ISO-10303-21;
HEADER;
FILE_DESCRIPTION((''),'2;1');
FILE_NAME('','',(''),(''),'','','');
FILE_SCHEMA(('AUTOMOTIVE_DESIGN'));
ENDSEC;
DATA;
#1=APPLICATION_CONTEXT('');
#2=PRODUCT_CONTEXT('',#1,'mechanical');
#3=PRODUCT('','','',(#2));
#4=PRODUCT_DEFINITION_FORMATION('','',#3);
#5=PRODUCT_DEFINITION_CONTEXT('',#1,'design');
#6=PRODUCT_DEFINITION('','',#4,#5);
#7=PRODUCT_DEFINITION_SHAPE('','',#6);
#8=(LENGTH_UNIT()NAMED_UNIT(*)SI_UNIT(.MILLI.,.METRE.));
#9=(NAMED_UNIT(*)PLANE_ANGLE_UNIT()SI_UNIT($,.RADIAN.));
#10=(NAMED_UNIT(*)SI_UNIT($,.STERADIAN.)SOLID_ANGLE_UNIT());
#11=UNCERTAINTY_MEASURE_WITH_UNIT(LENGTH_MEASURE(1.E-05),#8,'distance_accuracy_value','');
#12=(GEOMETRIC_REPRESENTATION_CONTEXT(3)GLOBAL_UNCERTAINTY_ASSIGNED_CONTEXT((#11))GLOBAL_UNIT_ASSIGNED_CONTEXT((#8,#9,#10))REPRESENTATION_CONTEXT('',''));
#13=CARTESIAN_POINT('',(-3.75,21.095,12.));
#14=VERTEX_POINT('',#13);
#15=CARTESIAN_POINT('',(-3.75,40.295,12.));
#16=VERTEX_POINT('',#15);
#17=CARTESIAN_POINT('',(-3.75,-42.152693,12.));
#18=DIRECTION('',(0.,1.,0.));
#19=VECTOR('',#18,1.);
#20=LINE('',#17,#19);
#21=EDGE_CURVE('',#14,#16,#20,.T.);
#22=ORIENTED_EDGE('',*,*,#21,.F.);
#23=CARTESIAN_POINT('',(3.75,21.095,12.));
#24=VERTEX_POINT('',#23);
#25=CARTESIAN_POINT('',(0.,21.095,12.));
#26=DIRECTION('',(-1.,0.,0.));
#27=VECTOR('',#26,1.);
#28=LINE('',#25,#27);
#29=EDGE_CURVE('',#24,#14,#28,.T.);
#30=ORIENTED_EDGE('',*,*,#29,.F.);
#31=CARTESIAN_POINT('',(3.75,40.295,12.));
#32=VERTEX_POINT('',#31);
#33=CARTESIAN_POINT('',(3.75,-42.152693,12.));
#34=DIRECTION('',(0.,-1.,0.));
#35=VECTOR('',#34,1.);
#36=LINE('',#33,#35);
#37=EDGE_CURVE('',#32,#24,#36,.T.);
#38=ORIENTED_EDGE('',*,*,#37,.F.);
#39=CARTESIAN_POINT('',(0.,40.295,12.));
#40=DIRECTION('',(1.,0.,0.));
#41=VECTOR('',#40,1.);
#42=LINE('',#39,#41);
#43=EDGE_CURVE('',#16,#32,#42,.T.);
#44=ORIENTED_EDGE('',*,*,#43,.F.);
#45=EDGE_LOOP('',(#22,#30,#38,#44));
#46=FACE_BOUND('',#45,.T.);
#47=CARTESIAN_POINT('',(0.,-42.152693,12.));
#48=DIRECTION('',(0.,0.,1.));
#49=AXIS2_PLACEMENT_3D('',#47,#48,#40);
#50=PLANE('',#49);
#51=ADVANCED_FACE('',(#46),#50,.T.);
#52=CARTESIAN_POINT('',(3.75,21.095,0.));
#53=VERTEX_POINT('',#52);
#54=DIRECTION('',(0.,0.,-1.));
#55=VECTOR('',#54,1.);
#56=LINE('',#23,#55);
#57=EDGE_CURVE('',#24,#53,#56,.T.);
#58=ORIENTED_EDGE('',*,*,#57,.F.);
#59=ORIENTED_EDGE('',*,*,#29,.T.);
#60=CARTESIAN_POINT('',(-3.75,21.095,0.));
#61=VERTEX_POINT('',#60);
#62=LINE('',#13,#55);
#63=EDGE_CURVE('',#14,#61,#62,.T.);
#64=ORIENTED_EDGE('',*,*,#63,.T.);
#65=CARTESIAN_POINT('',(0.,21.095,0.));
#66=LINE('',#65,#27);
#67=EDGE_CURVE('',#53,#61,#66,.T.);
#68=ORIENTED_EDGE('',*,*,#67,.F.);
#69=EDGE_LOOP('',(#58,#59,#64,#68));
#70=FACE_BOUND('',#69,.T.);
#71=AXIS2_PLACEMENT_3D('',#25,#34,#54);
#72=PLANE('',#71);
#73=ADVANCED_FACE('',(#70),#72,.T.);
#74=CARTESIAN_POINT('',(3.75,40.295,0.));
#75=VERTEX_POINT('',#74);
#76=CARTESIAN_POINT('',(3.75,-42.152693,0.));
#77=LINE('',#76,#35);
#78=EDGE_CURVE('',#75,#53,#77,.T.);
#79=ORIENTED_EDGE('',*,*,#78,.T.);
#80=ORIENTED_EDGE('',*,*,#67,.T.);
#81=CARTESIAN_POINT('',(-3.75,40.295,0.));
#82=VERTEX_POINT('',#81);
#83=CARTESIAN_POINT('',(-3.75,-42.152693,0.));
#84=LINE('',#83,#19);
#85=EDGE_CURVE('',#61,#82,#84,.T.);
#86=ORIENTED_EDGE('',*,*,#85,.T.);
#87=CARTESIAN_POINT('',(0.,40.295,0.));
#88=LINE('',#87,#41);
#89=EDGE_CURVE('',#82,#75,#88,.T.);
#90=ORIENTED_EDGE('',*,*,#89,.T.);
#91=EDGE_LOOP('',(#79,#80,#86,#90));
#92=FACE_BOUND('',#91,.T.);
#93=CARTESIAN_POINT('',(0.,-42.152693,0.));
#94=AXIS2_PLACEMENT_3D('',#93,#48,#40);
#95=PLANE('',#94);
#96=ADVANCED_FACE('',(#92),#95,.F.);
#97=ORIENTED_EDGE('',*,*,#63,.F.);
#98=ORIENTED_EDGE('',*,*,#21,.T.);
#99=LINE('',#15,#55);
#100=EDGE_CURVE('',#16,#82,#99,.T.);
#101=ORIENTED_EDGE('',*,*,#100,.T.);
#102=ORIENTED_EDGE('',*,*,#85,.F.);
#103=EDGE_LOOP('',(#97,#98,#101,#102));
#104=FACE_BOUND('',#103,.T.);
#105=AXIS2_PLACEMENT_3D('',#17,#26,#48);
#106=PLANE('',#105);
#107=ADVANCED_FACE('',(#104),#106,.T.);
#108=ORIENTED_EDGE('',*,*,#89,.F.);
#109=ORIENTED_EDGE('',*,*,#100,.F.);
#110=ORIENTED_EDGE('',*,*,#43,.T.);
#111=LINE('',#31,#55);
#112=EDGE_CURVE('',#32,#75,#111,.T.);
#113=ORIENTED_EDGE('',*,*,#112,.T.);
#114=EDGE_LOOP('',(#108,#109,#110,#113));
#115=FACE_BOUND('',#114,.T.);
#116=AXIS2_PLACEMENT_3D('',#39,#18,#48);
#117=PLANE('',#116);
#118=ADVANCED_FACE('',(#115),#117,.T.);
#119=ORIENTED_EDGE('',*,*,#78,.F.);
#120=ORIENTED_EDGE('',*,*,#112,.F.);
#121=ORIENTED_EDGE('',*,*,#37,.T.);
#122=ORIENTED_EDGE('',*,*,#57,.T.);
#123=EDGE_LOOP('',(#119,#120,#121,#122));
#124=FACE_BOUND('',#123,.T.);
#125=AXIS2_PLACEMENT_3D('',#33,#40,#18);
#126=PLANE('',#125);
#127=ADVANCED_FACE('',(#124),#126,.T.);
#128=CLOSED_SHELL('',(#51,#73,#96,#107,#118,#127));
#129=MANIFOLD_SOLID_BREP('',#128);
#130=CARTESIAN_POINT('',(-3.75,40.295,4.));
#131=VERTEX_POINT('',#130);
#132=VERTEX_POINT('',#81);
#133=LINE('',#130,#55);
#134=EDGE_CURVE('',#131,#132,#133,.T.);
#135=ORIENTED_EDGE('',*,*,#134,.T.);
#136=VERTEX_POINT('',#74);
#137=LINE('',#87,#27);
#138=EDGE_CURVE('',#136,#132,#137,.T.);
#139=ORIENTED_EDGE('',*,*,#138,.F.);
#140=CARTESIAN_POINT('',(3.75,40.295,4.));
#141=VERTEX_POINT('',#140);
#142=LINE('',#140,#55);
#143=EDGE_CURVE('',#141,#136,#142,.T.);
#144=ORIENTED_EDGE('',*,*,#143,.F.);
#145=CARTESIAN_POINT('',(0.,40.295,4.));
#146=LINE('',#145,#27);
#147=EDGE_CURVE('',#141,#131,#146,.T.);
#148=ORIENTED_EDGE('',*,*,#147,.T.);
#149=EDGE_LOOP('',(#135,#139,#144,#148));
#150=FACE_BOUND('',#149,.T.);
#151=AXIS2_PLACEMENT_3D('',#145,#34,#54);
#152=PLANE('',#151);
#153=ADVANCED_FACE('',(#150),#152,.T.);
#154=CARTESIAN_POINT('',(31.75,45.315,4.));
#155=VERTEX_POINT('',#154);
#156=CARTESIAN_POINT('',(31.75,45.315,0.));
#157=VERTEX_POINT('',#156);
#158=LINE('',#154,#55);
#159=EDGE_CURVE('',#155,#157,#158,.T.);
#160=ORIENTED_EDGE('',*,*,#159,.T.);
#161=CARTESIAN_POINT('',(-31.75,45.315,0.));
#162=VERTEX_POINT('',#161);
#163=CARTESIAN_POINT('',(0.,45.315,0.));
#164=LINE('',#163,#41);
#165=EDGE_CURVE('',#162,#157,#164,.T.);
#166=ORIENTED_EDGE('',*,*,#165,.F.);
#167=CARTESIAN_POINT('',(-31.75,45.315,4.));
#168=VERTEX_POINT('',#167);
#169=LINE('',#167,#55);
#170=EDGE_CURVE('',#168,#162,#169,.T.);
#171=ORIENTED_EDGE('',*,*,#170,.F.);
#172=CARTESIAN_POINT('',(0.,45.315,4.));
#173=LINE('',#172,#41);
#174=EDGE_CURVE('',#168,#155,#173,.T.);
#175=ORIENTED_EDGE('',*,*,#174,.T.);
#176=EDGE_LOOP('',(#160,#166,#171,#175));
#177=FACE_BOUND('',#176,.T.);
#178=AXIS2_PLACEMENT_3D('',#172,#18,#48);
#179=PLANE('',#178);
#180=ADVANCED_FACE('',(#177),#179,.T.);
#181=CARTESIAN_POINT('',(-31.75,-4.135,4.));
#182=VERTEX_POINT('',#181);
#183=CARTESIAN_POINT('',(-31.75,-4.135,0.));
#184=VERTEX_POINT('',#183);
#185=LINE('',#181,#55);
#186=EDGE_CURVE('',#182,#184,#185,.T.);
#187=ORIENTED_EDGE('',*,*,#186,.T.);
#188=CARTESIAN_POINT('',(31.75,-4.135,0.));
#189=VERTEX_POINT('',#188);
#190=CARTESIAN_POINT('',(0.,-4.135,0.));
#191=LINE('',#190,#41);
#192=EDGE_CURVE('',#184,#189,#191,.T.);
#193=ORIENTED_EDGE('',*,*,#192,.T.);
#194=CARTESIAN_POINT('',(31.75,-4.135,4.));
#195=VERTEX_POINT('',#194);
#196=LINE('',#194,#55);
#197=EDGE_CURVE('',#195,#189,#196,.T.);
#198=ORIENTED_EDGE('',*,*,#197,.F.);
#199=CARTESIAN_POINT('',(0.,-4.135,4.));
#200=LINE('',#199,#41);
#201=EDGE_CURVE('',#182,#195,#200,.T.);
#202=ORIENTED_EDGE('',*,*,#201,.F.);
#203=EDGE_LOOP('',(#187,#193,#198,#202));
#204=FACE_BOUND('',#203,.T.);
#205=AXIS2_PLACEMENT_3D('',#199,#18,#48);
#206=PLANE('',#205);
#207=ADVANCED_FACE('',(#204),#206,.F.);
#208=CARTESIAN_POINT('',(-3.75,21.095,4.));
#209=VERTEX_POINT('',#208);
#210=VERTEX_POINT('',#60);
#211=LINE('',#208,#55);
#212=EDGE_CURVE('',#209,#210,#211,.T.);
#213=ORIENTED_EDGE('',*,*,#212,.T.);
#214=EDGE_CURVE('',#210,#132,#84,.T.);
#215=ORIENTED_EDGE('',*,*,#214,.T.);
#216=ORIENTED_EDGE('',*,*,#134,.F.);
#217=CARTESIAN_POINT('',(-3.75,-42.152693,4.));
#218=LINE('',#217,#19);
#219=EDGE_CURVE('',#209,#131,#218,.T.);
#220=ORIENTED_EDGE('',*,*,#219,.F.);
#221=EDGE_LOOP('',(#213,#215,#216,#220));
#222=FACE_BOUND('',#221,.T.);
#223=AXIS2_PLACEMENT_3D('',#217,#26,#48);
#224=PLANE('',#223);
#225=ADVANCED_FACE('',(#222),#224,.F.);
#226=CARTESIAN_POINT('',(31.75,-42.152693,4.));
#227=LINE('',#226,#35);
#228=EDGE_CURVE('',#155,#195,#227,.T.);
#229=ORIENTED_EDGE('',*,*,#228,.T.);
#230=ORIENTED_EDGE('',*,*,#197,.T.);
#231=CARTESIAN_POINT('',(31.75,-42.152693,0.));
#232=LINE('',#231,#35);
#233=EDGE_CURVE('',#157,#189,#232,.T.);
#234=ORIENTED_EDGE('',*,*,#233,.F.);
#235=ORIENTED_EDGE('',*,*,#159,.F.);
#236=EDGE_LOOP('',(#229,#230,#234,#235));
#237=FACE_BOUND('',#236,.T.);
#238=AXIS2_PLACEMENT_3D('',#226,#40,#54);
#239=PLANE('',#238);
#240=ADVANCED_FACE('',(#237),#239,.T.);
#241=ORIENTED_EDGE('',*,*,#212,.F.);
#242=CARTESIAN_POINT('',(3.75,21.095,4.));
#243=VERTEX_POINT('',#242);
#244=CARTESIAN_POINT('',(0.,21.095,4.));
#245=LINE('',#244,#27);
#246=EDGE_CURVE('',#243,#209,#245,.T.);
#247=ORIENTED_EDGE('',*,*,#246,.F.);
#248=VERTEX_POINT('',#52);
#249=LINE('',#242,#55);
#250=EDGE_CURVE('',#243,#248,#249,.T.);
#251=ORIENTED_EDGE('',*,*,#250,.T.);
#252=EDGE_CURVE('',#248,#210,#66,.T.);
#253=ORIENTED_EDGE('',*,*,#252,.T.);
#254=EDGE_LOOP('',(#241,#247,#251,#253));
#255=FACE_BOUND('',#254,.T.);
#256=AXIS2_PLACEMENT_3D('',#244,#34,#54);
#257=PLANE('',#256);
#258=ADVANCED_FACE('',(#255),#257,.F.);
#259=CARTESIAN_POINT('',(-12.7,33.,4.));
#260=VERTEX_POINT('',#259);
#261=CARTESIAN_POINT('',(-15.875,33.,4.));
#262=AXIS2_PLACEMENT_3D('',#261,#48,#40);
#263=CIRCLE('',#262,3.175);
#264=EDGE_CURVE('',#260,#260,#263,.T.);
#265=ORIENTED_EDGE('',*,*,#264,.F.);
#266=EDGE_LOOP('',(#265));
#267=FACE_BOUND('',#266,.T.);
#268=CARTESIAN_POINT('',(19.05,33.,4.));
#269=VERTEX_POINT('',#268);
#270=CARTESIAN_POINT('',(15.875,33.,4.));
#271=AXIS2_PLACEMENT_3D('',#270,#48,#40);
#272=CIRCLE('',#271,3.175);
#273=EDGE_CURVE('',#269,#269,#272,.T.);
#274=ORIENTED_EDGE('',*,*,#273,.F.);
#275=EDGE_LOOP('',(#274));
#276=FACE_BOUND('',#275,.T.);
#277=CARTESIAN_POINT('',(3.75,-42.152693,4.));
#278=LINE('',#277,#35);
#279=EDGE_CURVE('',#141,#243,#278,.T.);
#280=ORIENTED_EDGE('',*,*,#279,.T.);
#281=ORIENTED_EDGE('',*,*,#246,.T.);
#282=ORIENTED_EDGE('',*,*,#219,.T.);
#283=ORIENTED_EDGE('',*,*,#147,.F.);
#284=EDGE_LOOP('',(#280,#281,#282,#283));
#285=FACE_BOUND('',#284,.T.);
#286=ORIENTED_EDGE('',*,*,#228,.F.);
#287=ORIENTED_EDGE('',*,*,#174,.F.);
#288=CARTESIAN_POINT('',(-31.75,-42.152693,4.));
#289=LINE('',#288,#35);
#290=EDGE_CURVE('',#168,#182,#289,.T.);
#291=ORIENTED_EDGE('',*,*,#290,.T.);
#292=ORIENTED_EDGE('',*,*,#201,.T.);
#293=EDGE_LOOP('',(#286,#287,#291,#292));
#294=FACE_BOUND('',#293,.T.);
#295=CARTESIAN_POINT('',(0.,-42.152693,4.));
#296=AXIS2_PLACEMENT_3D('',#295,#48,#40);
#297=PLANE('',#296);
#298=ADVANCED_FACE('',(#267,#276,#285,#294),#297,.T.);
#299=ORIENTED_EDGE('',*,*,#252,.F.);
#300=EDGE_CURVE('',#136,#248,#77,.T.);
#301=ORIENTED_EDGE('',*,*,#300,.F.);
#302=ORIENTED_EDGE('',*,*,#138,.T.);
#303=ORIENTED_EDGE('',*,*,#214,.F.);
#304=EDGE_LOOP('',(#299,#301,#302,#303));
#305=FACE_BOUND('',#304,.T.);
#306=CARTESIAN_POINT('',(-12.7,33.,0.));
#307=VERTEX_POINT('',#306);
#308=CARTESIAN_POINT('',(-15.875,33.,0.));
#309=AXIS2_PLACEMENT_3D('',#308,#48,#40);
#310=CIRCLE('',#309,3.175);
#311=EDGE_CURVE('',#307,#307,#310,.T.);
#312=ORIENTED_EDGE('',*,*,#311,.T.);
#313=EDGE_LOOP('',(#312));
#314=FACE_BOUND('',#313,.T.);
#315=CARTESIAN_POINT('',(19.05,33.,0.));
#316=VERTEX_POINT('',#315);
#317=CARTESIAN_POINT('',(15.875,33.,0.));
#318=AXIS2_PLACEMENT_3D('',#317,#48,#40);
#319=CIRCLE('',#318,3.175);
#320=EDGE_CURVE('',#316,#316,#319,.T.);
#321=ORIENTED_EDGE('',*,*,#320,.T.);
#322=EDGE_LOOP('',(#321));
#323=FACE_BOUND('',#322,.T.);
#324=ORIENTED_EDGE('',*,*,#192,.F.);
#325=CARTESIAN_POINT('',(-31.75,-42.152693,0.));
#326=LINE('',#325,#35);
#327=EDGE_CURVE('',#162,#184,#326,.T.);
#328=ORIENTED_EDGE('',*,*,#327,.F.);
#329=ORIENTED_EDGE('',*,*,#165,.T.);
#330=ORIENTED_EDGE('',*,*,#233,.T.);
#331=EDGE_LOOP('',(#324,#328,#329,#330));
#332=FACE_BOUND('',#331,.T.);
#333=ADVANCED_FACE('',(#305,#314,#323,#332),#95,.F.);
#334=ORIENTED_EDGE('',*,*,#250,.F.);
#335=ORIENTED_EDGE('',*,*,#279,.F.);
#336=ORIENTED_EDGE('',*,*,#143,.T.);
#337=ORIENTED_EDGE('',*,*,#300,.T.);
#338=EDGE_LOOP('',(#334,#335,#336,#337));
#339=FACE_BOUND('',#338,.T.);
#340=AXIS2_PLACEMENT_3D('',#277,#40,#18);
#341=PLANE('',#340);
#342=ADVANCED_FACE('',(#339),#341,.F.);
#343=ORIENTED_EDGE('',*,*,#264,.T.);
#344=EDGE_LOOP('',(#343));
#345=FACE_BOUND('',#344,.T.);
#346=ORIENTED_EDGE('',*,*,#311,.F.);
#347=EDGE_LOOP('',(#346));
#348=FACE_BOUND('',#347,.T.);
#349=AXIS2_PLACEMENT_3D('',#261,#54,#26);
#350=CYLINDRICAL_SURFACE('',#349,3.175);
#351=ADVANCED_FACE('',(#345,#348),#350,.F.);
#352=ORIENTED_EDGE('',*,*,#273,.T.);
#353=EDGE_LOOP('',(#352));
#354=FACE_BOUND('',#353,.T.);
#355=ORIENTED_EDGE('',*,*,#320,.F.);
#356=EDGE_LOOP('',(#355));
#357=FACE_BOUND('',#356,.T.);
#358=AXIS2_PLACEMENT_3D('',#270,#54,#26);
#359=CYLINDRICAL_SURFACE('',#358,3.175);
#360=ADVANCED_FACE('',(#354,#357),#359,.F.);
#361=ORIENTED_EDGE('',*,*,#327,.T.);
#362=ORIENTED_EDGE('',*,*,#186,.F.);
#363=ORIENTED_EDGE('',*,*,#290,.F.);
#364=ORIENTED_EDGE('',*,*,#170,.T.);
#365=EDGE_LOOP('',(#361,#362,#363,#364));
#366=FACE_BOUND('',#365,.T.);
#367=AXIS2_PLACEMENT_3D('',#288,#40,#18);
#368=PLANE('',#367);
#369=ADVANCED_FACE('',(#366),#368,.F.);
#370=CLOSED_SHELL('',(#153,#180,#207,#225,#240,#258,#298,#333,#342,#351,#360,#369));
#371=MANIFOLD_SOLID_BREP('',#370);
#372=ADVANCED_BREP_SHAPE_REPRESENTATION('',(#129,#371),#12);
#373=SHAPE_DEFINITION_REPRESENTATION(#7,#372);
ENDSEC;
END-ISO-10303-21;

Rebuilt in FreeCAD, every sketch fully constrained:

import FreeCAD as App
import Part
import Sketcher
from FreeCAD import Vector
Q = App.Units.Quantity

doc = App.newDocument("Part")
params = doc.addObject("Spreadsheet::Sheet", "Params")
for row, (alias, value) in enumerate([
    ("sketch1_diameter", "6.35 mm"),
    ("sketch1_width", "63.5 mm"),
    ("sketch1_width2", "7.5 mm"),
    ("sketch1_height", "19.2 mm"),
    ("sketch1_height2", "49.45 mm"),
    ("pad1_length", "4 mm"),
    ("sketch2_width", "7.5 mm"),
    ("sketch2_height", "19.2 mm"),
    ("pad2_length", "12 mm"),
], start=1):
    params.set(f"A{row}", alias)
    params.set(f"B{row}", "=" + value)
    params.setAlias(f"B{row}", alias)

body = doc.addObject("PartDesign::Body", "Body")

# Sketch on XY plane
sketch1 = body.newObject("Sketcher::SketchObject", "Sketch")
sketch1.AttachmentSupport = (doc.getObject("XY_Plane"), [""])
sketch1.MapMode = "FlatFace"
sketch1.addGeometry(Part.LineSegment(Vector(-31.8, 45.3, 0), Vector(-31.8, -4.1, 0)), False)
sketch1.addGeometry(Part.LineSegment(Vector(-31.8, -4.1, 0), Vector(31.8, -4.1, 0)), False)
sketch1.addGeometry(Part.LineSegment(Vector(31.8, -4.1, 0), Vector(31.8, 45.3, 0)), False)
sketch1.addGeometry(Part.LineSegment(Vector(31.8, 45.3, 0), Vector(-31.8, 45.3, 0)), False)
sketch1.addGeometry(Part.Circle(Vector(-15.9, 33, 0), Vector(0, 0, 1), 3.2), False)
sketch1.addGeometry(Part.LineSegment(Vector(-3.8, 40.3, 0), Vector(3.8, 40.3, 0)), False)
sketch1.addGeometry(Part.LineSegment(Vector(3.8, 40.3, 0), Vector(3.8, 21.1, 0)), False)
sketch1.addGeometry(Part.LineSegment(Vector(3.8, 21.1, 0), Vector(-3.8, 21.1, 0)), False)
sketch1.addGeometry(Part.LineSegment(Vector(-3.8, 21.1, 0), Vector(-3.8, 40.3, 0)), False)
sketch1.addGeometry(Part.Circle(Vector(15.9, 33, 0), Vector(0, 0, 1), 3.2), False)
sketch1.addConstraint(Sketcher.Constraint("Coincident", 0, 2, 1, 1))
sketch1.addConstraint(Sketcher.Constraint("Coincident", 1, 2, 2, 1))
sketch1.addConstraint(Sketcher.Constraint("Coincident", 2, 2, 3, 1))
sketch1.addConstraint(Sketcher.Constraint("Coincident", 3, 2, 0, 1))
sketch1.addConstraint(Sketcher.Constraint("Coincident", 5, 2, 6, 1))
sketch1.addConstraint(Sketcher.Constraint("Coincident", 6, 2, 7, 1))
sketch1.addConstraint(Sketcher.Constraint("Coincident", 7, 2, 8, 1))
sketch1.addConstraint(Sketcher.Constraint("Coincident", 8, 2, 5, 1))
sketch1.addConstraint(Sketcher.Constraint("Vertical", 0))
sketch1.addConstraint(Sketcher.Constraint("Horizontal", 1))
sketch1.addConstraint(Sketcher.Constraint("Vertical", 2))
sketch1.addConstraint(Sketcher.Constraint("Horizontal", 3))
sketch1.addConstraint(Sketcher.Constraint("Horizontal", 5))
sketch1.addConstraint(Sketcher.Constraint("Vertical", 6))
sketch1.addConstraint(Sketcher.Constraint("Horizontal", 7))
sketch1.addConstraint(Sketcher.Constraint("Vertical", 8))
sketch1.addConstraint(Sketcher.Constraint("Equal", 4, 9))
sketch1.addConstraint(Sketcher.Constraint("Symmetric", 4, 3, 9, 3, -2))
sketch1.addConstraint(Sketcher.Constraint("Diameter", 4, Q("6.35 mm")))
sketch1.addConstraint(Sketcher.Constraint("DistanceX", 1, 1, 1, 2, Q("63.5 mm")))
sketch1.addConstraint(Sketcher.Constraint("DistanceX", 5, 1, 5, 2, Q("7.5 mm")))
sketch1.addConstraint(Sketcher.Constraint("DistanceY", 6, 2, 6, 1, Q("19.2 mm")))
sketch1.addConstraint(Sketcher.Constraint("DistanceY", -1, 1, 4, 3, Q("33 mm")))
sketch1.addConstraint(Sketcher.Constraint("DistanceX", 5, 2, 2, 2, Q("28 mm")))
sketch1.addConstraint(Sketcher.Constraint("DistanceY", 0, 2, 0, 1, Q("49.45 mm")))
sketch1.addConstraint(Sketcher.Constraint("DistanceX", 0, 2, -1, 1, Q("31.75 mm")))
sketch1.addConstraint(Sketcher.Constraint("DistanceX", 4, 3, 9, 3, Q("31.75 mm")))
sketch1.addConstraint(Sketcher.Constraint("DistanceY", 5, 2, 2, 2, Q("5.02 mm")))
sketch1.addConstraint(Sketcher.Constraint("DistanceY", 0, 2, -1, 1, Q("4.135 mm")))
sketch1.setExpression("Constraints[18]", "Params.sketch1_diameter")
sketch1.setExpression("Constraints[19]", "Params.sketch1_width")
sketch1.setExpression("Constraints[20]", "Params.sketch1_width2")
sketch1.setExpression("Constraints[21]", "Params.sketch1_height")
sketch1.setExpression("Constraints[24]", "Params.sketch1_height2")
pad1 = body.newObject("PartDesign::Pad", "Pad")
pad1.Profile = sketch1
pad1.setExpression("Length", "Params.pad1_length")
body2 = doc.addObject("PartDesign::Body", "Body001")

# Sketch on XY plane
sketch2 = body2.newObject("Sketcher::SketchObject", "Sketch001")
sketch2.AttachmentSupport = (doc.getObject("XY_Plane001"), [""])
sketch2.MapMode = "FlatFace"
sketch2.addGeometry(Part.LineSegment(Vector(-4, 40, 0), Vector(-4, 21, 0)), False)
sketch2.addGeometry(Part.LineSegment(Vector(-4, 21, 0), Vector(4, 21, 0)), False)
sketch2.addGeometry(Part.LineSegment(Vector(4, 21, 0), Vector(4, 40, 0)), False)
sketch2.addGeometry(Part.LineSegment(Vector(4, 40, 0), Vector(-4, 40, 0)), False)
sketch2.addConstraint(Sketcher.Constraint("Coincident", 0, 2, 1, 1))
sketch2.addConstraint(Sketcher.Constraint("Coincident", 1, 2, 2, 1))
sketch2.addConstraint(Sketcher.Constraint("Coincident", 2, 2, 3, 1))
sketch2.addConstraint(Sketcher.Constraint("Coincident", 3, 2, 0, 1))
sketch2.addConstraint(Sketcher.Constraint("Vertical", 0))
sketch2.addConstraint(Sketcher.Constraint("Horizontal", 1))
sketch2.addConstraint(Sketcher.Constraint("Vertical", 2))
sketch2.addConstraint(Sketcher.Constraint("Horizontal", 3))
sketch2.addConstraint(Sketcher.Constraint("DistanceX", 1, 1, 1, 2, Q("7.5 mm")))
sketch2.addConstraint(Sketcher.Constraint("DistanceY", 0, 2, 0, 1, Q("19.2 mm")))
sketch2.addConstraint(Sketcher.Constraint("DistanceX", 0, 2, -1, 1, Q("3.75 mm")))
sketch2.addConstraint(Sketcher.Constraint("DistanceY", -1, 1, 0, 2, Q("21.095 mm")))
sketch2.setExpression("Constraints[8]", "Params.sketch2_width")
sketch2.setExpression("Constraints[9]", "Params.sketch2_height")
pad2 = body2.newObject("PartDesign::Pad", "Pad001")
pad2.Profile = sketch2
pad2.setExpression("Length", "Params.pad2_length")

doc.recompute()
